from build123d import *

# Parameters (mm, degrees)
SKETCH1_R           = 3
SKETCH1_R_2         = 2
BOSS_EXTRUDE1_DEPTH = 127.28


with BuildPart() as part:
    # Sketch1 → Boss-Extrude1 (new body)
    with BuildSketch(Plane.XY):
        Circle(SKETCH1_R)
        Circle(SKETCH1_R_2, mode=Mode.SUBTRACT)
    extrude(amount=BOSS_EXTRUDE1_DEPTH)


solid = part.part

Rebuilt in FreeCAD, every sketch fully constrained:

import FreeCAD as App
import Part
import Sketcher

V = App.Vector

doc = App.newDocument("Part")
body = doc.addObject("PartDesign::Body", "Body")

# Sketch on XY plane
sketch1 = body.newObject("Sketcher::SketchObject", "Sketch")
sketch1.AttachmentSupport = (doc.getObject("XY_Plane"), [""])
sketch1.MapMode = "FlatFace"
sketch1.addGeometry([
    Part.Circle(V(0, 0, 0), V(0, 0, 1), 3),
    Part.Circle(V(0, 0, 0), V(0, 0, 1), 2),
], False)
sketch1.addConstraint([
    Sketcher.Constraint("Coincident", 0, 3, -1, 1),
    Sketcher.Constraint("Coincident", 1, 3, -1, 1),
    Sketcher.Constraint("Diameter", 0, 6.0),
    Sketcher.Constraint("Diameter", 1, 4.0),
])
pad1 = body.newObject("PartDesign::Pad", "Pad")
pad1.Profile = sketch1
pad1.Length = 127.28

doc.recompute()
